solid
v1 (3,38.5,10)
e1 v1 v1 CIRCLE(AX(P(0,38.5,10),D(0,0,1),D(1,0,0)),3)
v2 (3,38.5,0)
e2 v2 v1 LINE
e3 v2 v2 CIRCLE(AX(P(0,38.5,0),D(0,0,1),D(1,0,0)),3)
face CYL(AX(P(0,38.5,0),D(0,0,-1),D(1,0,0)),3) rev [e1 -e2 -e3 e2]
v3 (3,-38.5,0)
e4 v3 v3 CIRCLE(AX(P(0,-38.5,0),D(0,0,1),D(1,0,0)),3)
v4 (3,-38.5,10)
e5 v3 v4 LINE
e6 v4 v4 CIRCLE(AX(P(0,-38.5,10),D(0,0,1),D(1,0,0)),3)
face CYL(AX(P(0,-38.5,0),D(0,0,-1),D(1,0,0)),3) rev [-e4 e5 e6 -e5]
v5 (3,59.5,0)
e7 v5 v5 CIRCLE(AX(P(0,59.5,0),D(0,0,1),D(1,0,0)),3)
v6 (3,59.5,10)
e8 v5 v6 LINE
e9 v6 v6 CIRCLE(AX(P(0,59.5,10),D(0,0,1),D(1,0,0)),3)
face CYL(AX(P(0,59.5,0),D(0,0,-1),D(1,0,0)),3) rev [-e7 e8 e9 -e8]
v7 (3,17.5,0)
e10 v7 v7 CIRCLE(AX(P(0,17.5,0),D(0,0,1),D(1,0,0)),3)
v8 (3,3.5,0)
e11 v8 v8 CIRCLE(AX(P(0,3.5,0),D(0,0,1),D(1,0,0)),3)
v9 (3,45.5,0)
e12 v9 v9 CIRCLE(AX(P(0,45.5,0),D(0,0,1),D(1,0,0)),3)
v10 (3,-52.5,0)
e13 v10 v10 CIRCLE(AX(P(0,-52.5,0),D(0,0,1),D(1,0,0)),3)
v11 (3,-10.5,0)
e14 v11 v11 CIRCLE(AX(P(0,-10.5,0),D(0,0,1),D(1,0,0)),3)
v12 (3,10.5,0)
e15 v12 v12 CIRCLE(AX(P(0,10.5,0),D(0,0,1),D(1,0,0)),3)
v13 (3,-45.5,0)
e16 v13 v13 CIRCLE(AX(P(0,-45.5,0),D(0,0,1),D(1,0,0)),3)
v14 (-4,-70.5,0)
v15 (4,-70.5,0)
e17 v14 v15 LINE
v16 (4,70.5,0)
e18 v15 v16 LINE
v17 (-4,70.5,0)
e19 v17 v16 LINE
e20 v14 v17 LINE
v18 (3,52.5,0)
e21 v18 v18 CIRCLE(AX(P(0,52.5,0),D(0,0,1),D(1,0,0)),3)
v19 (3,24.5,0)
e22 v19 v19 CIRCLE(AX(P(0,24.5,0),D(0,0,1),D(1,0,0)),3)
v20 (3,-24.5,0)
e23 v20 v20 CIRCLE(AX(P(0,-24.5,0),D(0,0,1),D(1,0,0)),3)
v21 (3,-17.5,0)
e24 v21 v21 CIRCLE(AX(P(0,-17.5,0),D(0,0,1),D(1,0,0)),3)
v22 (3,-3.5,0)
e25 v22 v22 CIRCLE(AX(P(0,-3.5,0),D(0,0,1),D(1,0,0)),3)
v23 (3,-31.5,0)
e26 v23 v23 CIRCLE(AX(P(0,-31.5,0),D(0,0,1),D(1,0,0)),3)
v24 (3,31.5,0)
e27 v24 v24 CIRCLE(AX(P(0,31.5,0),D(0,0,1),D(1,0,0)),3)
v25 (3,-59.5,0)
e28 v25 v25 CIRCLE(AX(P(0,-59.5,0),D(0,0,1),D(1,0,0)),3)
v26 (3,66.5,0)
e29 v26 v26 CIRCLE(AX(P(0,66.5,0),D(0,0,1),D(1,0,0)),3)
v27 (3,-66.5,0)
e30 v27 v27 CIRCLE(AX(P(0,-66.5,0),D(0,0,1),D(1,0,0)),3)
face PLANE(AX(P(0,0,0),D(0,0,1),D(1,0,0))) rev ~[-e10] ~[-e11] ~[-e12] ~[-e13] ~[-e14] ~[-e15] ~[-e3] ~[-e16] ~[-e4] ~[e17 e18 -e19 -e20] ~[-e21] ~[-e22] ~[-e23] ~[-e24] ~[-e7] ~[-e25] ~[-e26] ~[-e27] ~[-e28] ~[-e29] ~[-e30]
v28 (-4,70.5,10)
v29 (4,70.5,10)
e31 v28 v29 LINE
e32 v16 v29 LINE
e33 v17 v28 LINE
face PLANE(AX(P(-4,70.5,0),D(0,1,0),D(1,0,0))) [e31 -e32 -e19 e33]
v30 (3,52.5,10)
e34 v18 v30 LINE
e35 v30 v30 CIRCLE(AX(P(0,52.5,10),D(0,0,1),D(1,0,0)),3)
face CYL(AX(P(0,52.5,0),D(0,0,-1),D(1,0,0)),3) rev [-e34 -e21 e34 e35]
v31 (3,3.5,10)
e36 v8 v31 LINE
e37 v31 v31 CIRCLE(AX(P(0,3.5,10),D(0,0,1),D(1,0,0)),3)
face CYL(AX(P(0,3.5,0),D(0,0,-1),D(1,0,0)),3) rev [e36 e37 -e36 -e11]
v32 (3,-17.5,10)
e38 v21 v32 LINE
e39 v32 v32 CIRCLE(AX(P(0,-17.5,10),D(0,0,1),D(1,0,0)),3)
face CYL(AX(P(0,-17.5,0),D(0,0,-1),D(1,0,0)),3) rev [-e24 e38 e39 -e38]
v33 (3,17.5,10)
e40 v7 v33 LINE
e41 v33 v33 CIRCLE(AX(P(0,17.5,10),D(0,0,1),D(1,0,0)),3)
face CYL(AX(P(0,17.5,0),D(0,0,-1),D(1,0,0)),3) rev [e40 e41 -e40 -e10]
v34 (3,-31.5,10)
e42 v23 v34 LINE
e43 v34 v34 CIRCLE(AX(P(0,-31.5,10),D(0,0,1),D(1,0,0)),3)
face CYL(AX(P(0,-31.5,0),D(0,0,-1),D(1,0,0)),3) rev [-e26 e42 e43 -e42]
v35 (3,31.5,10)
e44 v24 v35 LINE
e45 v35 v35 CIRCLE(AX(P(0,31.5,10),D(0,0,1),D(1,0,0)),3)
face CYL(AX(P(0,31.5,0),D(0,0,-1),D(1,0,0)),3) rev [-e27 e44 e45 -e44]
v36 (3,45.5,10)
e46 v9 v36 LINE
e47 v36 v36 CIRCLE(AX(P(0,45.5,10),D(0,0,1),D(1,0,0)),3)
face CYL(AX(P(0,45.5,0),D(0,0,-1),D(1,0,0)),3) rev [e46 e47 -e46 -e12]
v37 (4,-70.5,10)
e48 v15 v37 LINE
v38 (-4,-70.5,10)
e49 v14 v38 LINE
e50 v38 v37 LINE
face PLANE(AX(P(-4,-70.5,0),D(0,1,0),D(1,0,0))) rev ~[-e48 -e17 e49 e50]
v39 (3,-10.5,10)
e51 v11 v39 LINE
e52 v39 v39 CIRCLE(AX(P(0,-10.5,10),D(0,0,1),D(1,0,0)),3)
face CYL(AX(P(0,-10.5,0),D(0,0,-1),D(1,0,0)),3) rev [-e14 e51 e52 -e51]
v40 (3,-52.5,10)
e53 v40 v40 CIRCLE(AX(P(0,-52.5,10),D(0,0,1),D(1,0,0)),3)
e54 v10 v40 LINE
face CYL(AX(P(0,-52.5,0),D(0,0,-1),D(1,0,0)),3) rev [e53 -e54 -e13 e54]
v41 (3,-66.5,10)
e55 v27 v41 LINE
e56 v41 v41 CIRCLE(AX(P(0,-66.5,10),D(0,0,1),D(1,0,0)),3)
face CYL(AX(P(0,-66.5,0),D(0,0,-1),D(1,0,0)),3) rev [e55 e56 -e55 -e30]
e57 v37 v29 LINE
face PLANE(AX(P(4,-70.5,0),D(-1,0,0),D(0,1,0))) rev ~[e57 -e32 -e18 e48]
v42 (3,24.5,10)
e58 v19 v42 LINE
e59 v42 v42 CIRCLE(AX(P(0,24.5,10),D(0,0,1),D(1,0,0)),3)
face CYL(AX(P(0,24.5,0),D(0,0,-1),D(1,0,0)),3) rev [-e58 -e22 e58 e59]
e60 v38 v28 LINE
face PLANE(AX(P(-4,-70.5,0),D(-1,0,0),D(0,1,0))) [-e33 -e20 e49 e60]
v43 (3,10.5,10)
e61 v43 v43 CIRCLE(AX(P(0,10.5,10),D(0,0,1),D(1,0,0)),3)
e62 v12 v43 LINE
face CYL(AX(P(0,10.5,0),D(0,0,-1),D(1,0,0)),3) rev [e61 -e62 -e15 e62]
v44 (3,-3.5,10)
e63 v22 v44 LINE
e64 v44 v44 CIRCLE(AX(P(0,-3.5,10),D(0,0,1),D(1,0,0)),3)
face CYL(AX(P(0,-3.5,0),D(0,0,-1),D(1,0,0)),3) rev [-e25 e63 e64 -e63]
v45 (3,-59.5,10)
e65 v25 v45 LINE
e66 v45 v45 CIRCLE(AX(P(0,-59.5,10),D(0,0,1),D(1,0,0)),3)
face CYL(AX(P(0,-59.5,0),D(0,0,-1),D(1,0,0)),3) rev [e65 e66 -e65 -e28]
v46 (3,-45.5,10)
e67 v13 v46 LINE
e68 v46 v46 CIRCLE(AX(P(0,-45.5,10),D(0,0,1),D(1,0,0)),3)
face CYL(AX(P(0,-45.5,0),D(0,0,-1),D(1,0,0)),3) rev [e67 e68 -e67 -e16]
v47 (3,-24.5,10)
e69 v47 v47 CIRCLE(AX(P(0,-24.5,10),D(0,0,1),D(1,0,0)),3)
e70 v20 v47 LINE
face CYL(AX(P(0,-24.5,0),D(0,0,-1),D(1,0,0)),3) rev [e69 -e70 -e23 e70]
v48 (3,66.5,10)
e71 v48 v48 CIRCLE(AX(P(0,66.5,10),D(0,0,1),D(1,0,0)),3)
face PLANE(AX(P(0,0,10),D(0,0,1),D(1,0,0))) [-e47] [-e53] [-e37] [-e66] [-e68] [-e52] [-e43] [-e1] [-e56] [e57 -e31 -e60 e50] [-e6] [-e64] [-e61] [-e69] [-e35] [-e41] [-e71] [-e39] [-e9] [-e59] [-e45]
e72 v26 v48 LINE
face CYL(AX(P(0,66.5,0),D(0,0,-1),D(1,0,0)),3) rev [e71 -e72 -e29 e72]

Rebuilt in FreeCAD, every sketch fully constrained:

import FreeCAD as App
import Part
import Sketcher

V = App.Vector
Q = App.Units.Quantity

doc = App.newDocument("Part")
body = doc.addObject("PartDesign::Body", "Body")

sketch1 = body.newObject("Sketcher::SketchObject", "Sketch")
sketch1.AttachmentSupport = (doc.getObject("XY_Plane"), [""])
sketch1.MapMode = "FlatFace"
sketch1.addGeometry([
    Part.LineSegment(V(-4, 70.5, 0), V(-4, -70.5, 0)),
    Part.LineSegment(V(-4, -70.5, 0), V(4, -70.5, 0)),
    Part.LineSegment(V(4, -70.5, 0), V(4, 70.5, 0)),
    Part.LineSegment(V(4, 70.5, 0), V(-4, 70.5, 0)),
    Part.Circle(V(0, -66.5, 0), V(0, 0, 1), 3),
    Part.Circle(V(0, -59.5, 0), V(0, 0, 1), 3),
    Part.Circle(V(0, -52.5, 0), V(0, 0, 1), 3),
    Part.Circle(V(0, -45.5, 0), V(0, 0, 1), 3),
    Part.Circle(V(0, -38.5, 0), V(0, 0, 1), 3),
    Part.Circle(V(0, -31.5, 0), V(0, 0, 1), 3),
    Part.Circle(V(0, -24.5, 0), V(0, 0, 1), 3),
    Part.Circle(V(0, -17.5, 0), V(0, 0, 1), 3),
    Part.Circle(V(0, -10.5, 0), V(0, 0, 1), 3),
    Part.Circle(V(0, -3.5, 0), V(0, 0, 1), 3),
    Part.Circle(V(0, 3.5, 0), V(0, 0, 1), 3),
    Part.Circle(V(0, 10.5, 0), V(0, 0, 1), 3),
    Part.Circle(V(0, 17.5, 0), V(0, 0, 1), 3),
    Part.Circle(V(0, 24.5, 0), V(0, 0, 1), 3),
    Part.Circle(V(0, 31.5, 0), V(0, 0, 1), 3),
    Part.Circle(V(0, 38.5, 0), V(0, 0, 1), 3),
    Part.Circle(V(0, 45.5, 0), V(0, 0, 1), 3),
    Part.Circle(V(0, 52.5, 0), V(0, 0, 1), 3),
    Part.Circle(V(0, 59.5, 0), V(0, 0, 1), 3),
    Part.Circle(V(0, 66.5, 0), V(0, 0, 1), 3),
], False)
sketch1.addConstraint([
    Sketcher.Constraint("Coincident", 0, 2, 1, 1),
    Sketcher.Constraint("Coincident", 1, 2, 2, 1),
    Sketcher.Constraint("Coincident", 2, 2, 3, 1),
    Sketcher.Constraint("Coincident", 3, 2, 0, 1),
    Sketcher.Constraint("Vertical", 0),
    Sketcher.Constraint("Horizontal", 1),
    Sketcher.Constraint("Vertical", 2),
    Sketcher.Constraint("Horizontal", 3),
    Sketcher.Constraint("Equal", 4, 5),
    Sketcher.Constraint("Equal", 5, 6),
    Sketcher.Constraint("Equal", 6, 7),
    Sketcher.Constraint("Equal", 7, 8),
    Sketcher.Constraint("Equal", 8, 9),
    Sketcher.Constraint("Equal", 9, 10),
    Sketcher.Constraint("Equal", 10, 11),
    Sketcher.Constraint("Equal", 11, 12),
    Sketcher.Constraint("Equal", 12, 13),
    Sketcher.Constraint("Equal", 13, 14),
    Sketcher.Constraint("Equal", 14, 15),
    Sketcher.Constraint("Equal", 15, 16),
    Sketcher.Constraint("Equal", 16, 17),
    Sketcher.Constraint("Equal", 17, 18),
    Sketcher.Constraint("Equal", 18, 19),
    Sketcher.Constraint("Equal", 19, 20),
    Sketcher.Constraint("Equal", 20, 21),
    Sketcher.Constraint("Equal", 21, 22),
    Sketcher.Constraint("Equal", 22, 23),
    Sketcher.Constraint("Symmetric", 13, 3, 14, 3, -1, 1),
    Sketcher.Constraint("Symmetric", 12, 3, 15, 3, -1, 1),
    Sketcher.Constraint("Symmetric", 11, 3, 16, 3, -1, 1),
    Sketcher.Constraint("Symmetric", 10, 3, 17, 3, -1, 1),
    Sketcher.Constraint("Symmetric", 9, 3, 18, 3, -1, 1),
    Sketcher.Constraint("Symmetric", 8, 3, 19, 3, -1, 1),
    Sketcher.Constraint("Symmetric", 7, 3, 20, 3, -1, 1),
    Sketcher.Constraint("Symmetric", 6, 3, 21, 3, -1, 1),
    Sketcher.Constraint("Symmetric", 5, 3, 22, 3, -1, 1),
    Sketcher.Constraint("Symmetric", 4, 3, 23, 3, -1, 1),
    Sketcher.Constraint("Symmetric", 0, 2, 2, 2, -1, 1),
    Sketcher.Constraint("PointOnObject", 4, 3, -2),
    Sketcher.Constraint("PointOnObject", 5, 3, -2),
    Sketcher.Constraint("PointOnObject", 6, 3, -2),
    Sketcher.Constraint("PointOnObject", 7, 3, -2),
    Sketcher.Constraint("PointOnObject", 8, 3, -2),
    Sketcher.Constraint("PointOnObject", 9, 3, -2),
    Sketcher.Constraint("PointOnObject", 10, 3, -2),
    Sketcher.Constraint("PointOnObject", 11, 3, -2),
    Sketcher.Constraint("PointOnObject", 12, 3, -2),
    Sketcher.Constraint("PointOnObject", 13, 3, -2),
    Sketcher.Constraint("Diameter", 4, Q("6 mm")),
    Sketcher.Constraint("DistanceX", 1, 1, 1, 2, Q("8 mm")),
    Sketcher.Constraint("DistanceY", 0, 2, 0, 1, Q("141 mm")),
    Sketcher.Constraint("DistanceY", 4, 3, 5, 3, Q("7 mm")),
    Sketcher.Constraint("DistanceY", 5, 3, 6, 3, Q("7 mm")),
    Sketcher.Constraint("DistanceY", 6, 3, 7, 3, Q("7 mm")),
    Sketcher.Constraint("DistanceY", 7, 3, 8, 3, Q("7 mm")),
    Sketcher.Constraint("DistanceY", 8, 3, 9, 3, Q("7 mm")),
    Sketcher.Constraint("DistanceY", 9, 3, 10, 3, Q("7 mm")),
    Sketcher.Constraint("DistanceY", 10, 3, 11, 3, Q("7 mm")),
    Sketcher.Constraint("DistanceY", 11, 3, 12, 3, Q("7 mm")),
    Sketcher.Constraint("DistanceY", 12, 3, 13, 3, Q("7 mm")),
    Sketcher.Constraint("DistanceY", 13, 3, 14, 3, Q("7 mm")),
])
pad1 = body.newObject("PartDesign::Pad", "Pad")
pad1.Profile = sketch1
pad1.Length = 10

doc.recompute()
